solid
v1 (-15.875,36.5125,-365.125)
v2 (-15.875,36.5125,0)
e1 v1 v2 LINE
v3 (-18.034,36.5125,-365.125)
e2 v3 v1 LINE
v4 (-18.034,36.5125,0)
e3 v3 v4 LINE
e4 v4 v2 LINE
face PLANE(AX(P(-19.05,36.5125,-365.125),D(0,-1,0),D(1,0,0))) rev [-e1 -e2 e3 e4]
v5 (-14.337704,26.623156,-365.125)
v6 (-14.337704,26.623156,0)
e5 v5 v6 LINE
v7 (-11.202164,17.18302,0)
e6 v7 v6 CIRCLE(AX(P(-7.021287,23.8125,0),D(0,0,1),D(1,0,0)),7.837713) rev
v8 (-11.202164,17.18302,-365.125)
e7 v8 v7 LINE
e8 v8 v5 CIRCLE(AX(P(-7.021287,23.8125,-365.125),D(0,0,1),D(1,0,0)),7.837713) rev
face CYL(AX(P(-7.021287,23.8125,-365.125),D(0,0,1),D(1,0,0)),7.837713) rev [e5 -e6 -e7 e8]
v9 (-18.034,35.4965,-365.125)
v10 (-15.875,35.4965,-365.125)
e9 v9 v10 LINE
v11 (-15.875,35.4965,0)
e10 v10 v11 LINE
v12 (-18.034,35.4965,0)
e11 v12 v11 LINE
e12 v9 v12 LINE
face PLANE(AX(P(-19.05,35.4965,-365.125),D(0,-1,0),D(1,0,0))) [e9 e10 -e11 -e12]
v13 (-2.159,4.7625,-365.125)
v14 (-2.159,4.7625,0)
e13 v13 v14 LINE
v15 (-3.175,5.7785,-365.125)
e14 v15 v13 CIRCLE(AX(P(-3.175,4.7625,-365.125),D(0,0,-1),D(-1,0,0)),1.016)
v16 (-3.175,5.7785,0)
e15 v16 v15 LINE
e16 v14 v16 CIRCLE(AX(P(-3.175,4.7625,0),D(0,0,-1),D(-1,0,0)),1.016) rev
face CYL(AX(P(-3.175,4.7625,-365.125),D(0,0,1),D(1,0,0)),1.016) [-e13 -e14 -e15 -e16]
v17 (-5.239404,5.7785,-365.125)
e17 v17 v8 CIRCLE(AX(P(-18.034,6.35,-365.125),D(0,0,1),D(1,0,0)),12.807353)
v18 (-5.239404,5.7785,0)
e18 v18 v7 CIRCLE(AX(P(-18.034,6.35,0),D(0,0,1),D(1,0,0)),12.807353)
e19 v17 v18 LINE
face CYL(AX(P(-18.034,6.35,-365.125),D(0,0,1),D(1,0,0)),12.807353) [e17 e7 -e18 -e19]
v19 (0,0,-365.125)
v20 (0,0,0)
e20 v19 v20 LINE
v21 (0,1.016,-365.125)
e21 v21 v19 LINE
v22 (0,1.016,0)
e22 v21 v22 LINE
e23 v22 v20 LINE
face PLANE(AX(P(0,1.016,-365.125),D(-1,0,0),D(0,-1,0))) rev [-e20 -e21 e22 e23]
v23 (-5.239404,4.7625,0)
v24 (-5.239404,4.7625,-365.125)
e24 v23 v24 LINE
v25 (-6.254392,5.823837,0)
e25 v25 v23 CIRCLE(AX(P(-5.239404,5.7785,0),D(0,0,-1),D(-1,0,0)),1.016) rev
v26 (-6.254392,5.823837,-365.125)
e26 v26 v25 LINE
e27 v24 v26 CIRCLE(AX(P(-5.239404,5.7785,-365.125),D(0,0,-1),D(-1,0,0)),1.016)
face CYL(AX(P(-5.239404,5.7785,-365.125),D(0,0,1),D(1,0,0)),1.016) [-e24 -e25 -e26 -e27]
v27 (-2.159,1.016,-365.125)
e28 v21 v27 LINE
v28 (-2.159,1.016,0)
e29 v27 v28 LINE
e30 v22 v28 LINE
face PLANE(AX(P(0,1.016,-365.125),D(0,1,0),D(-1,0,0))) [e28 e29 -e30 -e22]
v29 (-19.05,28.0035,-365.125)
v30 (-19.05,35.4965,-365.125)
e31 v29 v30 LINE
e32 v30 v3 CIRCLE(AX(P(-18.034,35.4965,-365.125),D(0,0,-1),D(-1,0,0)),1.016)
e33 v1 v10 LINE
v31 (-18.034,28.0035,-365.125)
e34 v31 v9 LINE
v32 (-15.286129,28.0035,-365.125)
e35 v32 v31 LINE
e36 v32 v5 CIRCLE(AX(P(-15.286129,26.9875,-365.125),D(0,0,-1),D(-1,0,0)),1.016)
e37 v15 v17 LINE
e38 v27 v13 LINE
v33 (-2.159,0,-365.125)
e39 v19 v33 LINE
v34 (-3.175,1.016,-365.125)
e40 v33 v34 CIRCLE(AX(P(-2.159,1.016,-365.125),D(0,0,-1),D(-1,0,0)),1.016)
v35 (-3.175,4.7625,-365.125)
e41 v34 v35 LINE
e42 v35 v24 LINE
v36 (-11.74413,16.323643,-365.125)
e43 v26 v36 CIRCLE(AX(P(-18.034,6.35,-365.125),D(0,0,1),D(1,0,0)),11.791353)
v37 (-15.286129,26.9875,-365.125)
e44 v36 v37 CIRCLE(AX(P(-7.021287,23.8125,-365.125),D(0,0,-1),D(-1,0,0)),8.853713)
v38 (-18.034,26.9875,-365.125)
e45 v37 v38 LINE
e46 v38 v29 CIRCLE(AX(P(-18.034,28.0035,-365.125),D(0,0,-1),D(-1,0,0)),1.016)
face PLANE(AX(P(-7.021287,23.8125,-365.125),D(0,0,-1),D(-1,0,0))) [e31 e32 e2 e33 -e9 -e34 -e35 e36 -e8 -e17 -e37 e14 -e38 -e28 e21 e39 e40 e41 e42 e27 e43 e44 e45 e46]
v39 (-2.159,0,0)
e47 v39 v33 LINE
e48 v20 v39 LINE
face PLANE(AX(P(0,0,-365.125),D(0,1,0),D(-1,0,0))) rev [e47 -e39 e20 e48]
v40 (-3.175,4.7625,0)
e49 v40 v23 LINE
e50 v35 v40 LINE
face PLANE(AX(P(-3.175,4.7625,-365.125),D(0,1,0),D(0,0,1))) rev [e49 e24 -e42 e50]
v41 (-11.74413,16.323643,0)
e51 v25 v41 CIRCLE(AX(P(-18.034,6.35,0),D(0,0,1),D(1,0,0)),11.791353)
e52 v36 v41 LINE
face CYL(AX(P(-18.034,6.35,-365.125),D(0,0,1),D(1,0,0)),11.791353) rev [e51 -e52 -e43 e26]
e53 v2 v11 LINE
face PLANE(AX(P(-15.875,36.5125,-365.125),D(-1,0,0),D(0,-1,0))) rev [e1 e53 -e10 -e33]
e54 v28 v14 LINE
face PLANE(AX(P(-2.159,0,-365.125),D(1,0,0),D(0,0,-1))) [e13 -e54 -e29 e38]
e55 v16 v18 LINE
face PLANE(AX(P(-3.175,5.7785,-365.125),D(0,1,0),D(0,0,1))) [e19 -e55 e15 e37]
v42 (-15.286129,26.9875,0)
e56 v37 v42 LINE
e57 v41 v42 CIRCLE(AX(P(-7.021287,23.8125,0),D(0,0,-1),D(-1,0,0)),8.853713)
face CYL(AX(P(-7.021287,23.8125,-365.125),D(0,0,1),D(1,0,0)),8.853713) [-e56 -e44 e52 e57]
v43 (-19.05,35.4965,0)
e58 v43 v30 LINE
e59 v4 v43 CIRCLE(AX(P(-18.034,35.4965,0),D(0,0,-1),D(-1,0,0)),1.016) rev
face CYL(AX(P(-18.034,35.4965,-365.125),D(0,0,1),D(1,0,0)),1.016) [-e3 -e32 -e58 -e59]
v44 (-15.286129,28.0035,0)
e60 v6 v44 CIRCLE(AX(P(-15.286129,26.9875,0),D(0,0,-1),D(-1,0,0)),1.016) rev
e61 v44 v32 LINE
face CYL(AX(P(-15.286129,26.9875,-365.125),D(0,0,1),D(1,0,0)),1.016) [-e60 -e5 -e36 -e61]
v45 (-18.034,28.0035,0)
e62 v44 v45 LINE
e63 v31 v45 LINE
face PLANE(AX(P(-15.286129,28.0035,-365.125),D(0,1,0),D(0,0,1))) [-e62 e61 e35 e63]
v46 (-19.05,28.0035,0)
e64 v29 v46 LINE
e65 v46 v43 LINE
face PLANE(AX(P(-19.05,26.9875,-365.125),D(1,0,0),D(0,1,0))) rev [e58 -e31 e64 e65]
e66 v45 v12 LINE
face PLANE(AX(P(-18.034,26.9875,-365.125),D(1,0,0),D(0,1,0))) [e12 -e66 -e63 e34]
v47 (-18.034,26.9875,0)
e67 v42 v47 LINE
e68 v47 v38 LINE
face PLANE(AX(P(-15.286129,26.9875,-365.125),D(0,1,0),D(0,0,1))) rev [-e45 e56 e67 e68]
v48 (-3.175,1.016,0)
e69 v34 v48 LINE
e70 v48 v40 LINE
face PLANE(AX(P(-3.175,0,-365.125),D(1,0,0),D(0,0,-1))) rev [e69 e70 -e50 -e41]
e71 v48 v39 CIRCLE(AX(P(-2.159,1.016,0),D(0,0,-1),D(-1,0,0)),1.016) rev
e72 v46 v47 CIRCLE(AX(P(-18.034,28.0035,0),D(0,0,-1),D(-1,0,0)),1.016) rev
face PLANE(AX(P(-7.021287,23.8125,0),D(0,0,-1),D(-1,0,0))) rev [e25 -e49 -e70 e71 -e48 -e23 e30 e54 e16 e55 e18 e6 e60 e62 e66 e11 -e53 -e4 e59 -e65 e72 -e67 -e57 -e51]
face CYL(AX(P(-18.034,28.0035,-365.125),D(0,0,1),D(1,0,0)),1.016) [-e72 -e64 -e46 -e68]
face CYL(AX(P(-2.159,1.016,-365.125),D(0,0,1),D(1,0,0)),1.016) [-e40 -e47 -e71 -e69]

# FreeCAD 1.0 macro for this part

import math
import FreeCAD as App
import Part
import Sketcher
Q = App.Units.Quantity


def edges_at(feature, points):
    """Names of the edges that pass closest to the given points."""
    edges = feature.Shape.Edges
    near = lambda p: min(range(len(edges)), key=lambda i: edges[i].distToShape(Part.Vertex(*p))[0])
    return sorted({f"Edge{near(p) + 1}" for p in points})

doc = App.newDocument("Part")
body = doc.addObject("PartDesign::Body", "Body")

# Sketch on XY plane
sketch1 = body.newObject("Sketcher::SketchObject", "Sketch")
sketch1.AttachmentSupport = (doc.getObject("XY_Plane"), [""])
sketch1.MapMode = "FlatFace"
sketch1.addGeometry([
    Part.LineSegment(App.Vector(-3.2, 0, 0), App.Vector(0, 0, 0)),  # 0
    Part.LineSegment(App.Vector(0, 0, 0), App.Vector(0, 1, 0)),  # 1
    Part.LineSegment(App.Vector(0, 1, 0), App.Vector(-2.2, 1, 0)),  # 2
    Part.LineSegment(App.Vector(-2.2, 1, 0), App.Vector(-2.2, 5.8, 0)),  # 3
    Part.LineSegment(App.Vector(-2.2, 5.8, 0), App.Vector(-5.2, 5.8, 0)),  # 4
    Part.ArcOfCircle(Part.Circle(App.Vector(-18, 6.3, 0), App.Vector(0, 0, 1), 12.8), math.radians(-3), math.radians(58)),  # 5
    Part.ArcOfCircle(Part.Circle(App.Vector(-7, 23.8, 0), App.Vector(0, 0, 1), 7.8), math.radians(148), math.radians(238)),  # 6
    Part.LineSegment(App.Vector(-13.6, 28, 0), App.Vector(-18, 28, 0)),  # 7
    Part.LineSegment(App.Vector(-18, 28, 0), App.Vector(-18, 35.5, 0)),  # 8
    Part.LineSegment(App.Vector(-18, 35.5, 0), App.Vector(-15.9, 35.5, 0)),  # 9
    Part.LineSegment(App.Vector(-15.9, 35.5, 0), App.Vector(-15.9, 36.5, 0)),  # 10
    Part.LineSegment(App.Vector(-15.9, 36.5, 0), App.Vector(-19.1, 36.5, 0)),  # 11
    Part.LineSegment(App.Vector(-19.1, 36.5, 0), App.Vector(-19.1, 27, 0)),  # 12
    Part.LineSegment(App.Vector(-19.1, 27, 0), App.Vector(-15.3, 27, 0)),  # 13
    Part.ArcOfCircle(Part.Circle(App.Vector(-7, 23.8, 0), App.Vector(0, 0, 1), 8.9), math.radians(159), math.radians(238)),  # 14
    Part.ArcOfCircle(Part.Circle(App.Vector(-18, 6.3, 0), App.Vector(0, 0, 1), 11.8), math.radians(-8), math.radians(58)),  # 15
    Part.LineSegment(App.Vector(-6.3, 4.8, 0), App.Vector(-3.2, 4.8, 0)),  # 16
    Part.LineSegment(App.Vector(-3.2, 4.8, 0), App.Vector(-3.2, 0, 0)),  # 17
], False)
sketch1.addConstraint([
    Sketcher.Constraint("Coincident", 0, 2, 1, 1),
    Sketcher.Constraint("Coincident", 1, 2, 2, 1),
    Sketcher.Constraint("Coincident", 2, 2, 3, 1),
    Sketcher.Constraint("Coincident", 3, 2, 4, 1),
    Sketcher.Constraint("Coincident", 4, 2, 5, 1),
    Sketcher.Constraint("Tangent", 5, 2, 6, 2),
    Sketcher.Constraint("Coincident", 6, 1, 7, 1),
    Sketcher.Constraint("Coincident", 7, 2, 8, 1),
    Sketcher.Constraint("Coincident", 8, 2, 9, 1),
    Sketcher.Constraint("Coincident", 9, 2, 10, 1),
    Sketcher.Constraint("Coincident", 10, 2, 11, 1),
    Sketcher.Constraint("Coincident", 11, 2, 12, 1),
    Sketcher.Constraint("Coincident", 12, 2, 13, 1),
    Sketcher.Constraint("Coincident", 13, 2, 14, 1),
    Sketcher.Constraint("Tangent", 14, 2, 15, 2),
    Sketcher.Constraint("Coincident", 15, 1, 16, 1),
    Sketcher.Constraint("Coincident", 16, 2, 17, 1),
    Sketcher.Constraint("Coincident", 17, 2, 0, 1),
    Sketcher.Constraint("Horizontal", 0),
    Sketcher.Constraint("Vertical", 1),
    Sketcher.Constraint("Horizontal", 2),
    Sketcher.Constraint("Vertical", 3),
    Sketcher.Constraint("Horizontal", 4),
    Sketcher.Constraint("Horizontal", 7),
    Sketcher.Constraint("Vertical", 8),
    Sketcher.Constraint("Horizontal", 9),
    Sketcher.Constraint("Vertical", 10),
    Sketcher.Constraint("Horizontal", 11),
    Sketcher.Constraint("Vertical", 12),
    Sketcher.Constraint("Horizontal", 13),
    Sketcher.Constraint("Horizontal", 16),
    Sketcher.Constraint("Vertical", 17),
    Sketcher.Constraint("Coincident", 0, 2, -1, 1),
    Sketcher.Constraint("Coincident", 14, 3, 6, 3),
    Sketcher.Constraint("Coincident", 15, 3, 5, 3),
    Sketcher.Constraint("Vertical", 15, 3, 7, 2),
    Sketcher.Constraint("Equal", 2, 9),
    Sketcher.Constraint("Equal", 0, 11),
    Sketcher.Constraint("Equal", 11, 16),
    Sketcher.Constraint("Equal", 1, 10),
    Sketcher.Constraint("Equal", 3, 17),
    Sketcher.Constraint("DistanceY", 1, 1, 1, 2, Q("0.04 in")),
    Sketcher.Constraint("DistanceY", 6, 3, 10, 2, Q("0.5 in")),
    Sketcher.Constraint("DistanceX", 0, 1, 0, 2, Q("0.125 in")),
    Sketcher.Constraint("DistanceX", 2, 2, 2, 1, Q("0.085 in")),
    Sketcher.Constraint("DistanceY", 3, 1, 3, 2, Q("0.1875 in")),
    Sketcher.Constraint("DistanceY", 8, 1, 8, 2, Q("0.295 in")),
    Sketcher.Constraint("DistanceY", 12, 2, 12, 1, Q("0.375 in")),
    Sketcher.Constraint("DistanceX", 5, 3, -1, 1, Q("0.71 in")),
    Sketcher.Constraint("DistanceY", -1, 1, 5, 3, Q("0.25 in")),
    Sketcher.Constraint("DistanceY", -1, 1, 6, 3, Q("0.9375 in")),
    Sketcher.Constraint("Radius", 5, 12.807353),
    Sketcher.Constraint("Radius", 6, 7.837713),
])
pad1 = body.newObject("PartDesign::Pad", "Pad")
pad1.Profile = sketch1
pad1.Length = Q("14.375 in")
pad1.Reversed = True
doc.recompute()

fillet = body.newObject("PartDesign::Fillet", "Fillet")
fillet.Base = (pad1, edges_at(pad1, [
    (-13.644, 28.003, -182.562),
    (-2.159, 5.779, -182.562),
    (-3.175, 0, -182.562),
    (-6.35, 4.763, -182.562),
    (-19.05, 26.988, -182.562),
    (-19.05, 36.513, -182.562),
]))
fillet.Radius = Q("0.04 in")

doc.recompute()
